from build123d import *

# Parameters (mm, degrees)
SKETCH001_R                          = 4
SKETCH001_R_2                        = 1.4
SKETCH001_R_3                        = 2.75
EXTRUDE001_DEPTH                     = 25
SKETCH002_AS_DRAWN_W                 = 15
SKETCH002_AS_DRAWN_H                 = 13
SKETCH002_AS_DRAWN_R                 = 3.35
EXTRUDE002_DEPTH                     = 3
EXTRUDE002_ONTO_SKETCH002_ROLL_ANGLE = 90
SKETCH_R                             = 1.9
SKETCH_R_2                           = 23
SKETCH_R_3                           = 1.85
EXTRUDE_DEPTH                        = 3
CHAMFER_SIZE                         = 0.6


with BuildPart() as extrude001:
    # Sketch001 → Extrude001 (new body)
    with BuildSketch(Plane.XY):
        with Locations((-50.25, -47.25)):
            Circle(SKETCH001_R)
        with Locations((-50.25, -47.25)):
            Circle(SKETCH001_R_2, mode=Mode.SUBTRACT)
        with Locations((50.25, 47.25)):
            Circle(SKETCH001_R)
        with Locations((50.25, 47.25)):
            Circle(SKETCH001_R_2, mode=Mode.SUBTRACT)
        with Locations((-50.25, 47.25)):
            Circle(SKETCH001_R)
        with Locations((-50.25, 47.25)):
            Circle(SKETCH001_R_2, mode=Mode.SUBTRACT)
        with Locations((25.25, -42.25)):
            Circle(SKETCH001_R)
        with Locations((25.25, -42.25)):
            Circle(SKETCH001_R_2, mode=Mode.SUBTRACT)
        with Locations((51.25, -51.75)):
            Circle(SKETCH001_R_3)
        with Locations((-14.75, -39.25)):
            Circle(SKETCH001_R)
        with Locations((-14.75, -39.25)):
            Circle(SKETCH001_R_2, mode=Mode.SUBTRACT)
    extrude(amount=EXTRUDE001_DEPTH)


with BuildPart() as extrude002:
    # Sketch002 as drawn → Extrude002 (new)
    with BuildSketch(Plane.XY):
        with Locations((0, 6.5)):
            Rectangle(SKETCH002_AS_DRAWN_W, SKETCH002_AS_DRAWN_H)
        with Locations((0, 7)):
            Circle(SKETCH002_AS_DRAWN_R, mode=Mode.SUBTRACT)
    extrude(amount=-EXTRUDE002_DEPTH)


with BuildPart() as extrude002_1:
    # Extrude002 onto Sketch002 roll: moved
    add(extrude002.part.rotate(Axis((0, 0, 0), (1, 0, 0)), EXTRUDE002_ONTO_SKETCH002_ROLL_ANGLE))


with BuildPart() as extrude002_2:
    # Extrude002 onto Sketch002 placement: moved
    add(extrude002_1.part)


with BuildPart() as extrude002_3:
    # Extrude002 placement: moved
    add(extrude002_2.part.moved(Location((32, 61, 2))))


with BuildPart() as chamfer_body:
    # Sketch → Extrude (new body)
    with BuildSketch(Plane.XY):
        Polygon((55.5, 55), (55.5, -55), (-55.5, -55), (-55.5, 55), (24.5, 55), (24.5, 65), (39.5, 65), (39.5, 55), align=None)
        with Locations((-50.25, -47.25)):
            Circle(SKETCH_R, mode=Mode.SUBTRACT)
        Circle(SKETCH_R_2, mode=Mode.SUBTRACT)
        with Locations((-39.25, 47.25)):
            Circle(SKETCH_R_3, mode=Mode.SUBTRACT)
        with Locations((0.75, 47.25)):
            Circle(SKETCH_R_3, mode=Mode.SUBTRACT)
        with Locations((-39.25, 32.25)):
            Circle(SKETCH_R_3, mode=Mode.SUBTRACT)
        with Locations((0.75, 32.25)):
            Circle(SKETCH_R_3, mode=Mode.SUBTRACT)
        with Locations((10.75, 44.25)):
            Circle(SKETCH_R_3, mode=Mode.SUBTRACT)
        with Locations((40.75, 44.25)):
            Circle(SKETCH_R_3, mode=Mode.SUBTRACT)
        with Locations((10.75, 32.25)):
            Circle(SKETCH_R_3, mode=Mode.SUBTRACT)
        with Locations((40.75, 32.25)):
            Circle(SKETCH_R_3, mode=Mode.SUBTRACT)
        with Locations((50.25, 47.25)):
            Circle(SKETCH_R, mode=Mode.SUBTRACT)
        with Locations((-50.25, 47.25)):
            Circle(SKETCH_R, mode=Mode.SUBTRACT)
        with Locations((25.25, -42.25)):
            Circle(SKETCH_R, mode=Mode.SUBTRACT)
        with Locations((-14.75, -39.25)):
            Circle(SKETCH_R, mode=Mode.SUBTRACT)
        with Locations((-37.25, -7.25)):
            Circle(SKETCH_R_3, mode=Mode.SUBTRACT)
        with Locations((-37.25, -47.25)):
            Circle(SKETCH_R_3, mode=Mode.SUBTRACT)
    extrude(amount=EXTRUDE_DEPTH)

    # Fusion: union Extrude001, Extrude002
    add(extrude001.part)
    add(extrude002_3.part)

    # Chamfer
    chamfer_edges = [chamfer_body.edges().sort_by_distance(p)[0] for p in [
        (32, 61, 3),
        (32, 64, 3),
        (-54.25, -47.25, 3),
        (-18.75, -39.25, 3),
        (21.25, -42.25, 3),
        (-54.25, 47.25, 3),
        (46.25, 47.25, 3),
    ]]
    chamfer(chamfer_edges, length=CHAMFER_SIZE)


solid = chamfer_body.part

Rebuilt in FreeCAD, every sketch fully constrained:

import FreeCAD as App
import Part
import Sketcher
from FreeCAD import Vector
Q = App.Units.Quantity


def edges_at(feature, points):
    """Names of the edges that pass closest to the given points."""
    edges = feature.Shape.Edges
    near = lambda p: min(range(len(edges)), key=lambda i: edges[i].distToShape(Part.Vertex(*p))[0])
    return sorted({f"Edge{near(p) + 1}" for p in points})


def add_polygon(sketch, points):
    """Adds a closed chain of lines whose ends are joined by coincident constraints."""
    first, n = sketch.GeometryCount, len(points)
    for a, b in zip(points, points[1:] + points[:1]):
        sketch.addGeometry(Part.LineSegment(App.Vector(*a, 0), App.Vector(*b, 0)), False)
    for i in range(n):
        sketch.addConstraint(Sketcher.Constraint("Coincident", first + i, 2, first + (i + 1) % n, 1))

doc = App.newDocument("Part")
params = doc.addObject("Spreadsheet::Sheet", "Params")
for row, (alias, value) in enumerate([
    ("sketch1_diameter", "8 mm"),
    ("sketch1_diameter2", "2.8 mm"),
    ("sketch1_diameter3", "5.5 mm"),
    ("pad1_length", "25 mm"),
    ("sketch2_diameter", "6.7 mm"),
    ("sketch2_width", "15 mm"),
    ("sketch2_height", "13 mm"),
    ("pad2_length", "3 mm"),
    ("sketch3_diameter", "46 mm"),
    ("sketch3_diameter2", "3.8 mm"),
    ("sketch3_diameter3", "3.7 mm"),
    ("sketch3_width", "16 mm"),
    ("sketch3_width2", "15 mm"),
    ("pad3_length", "3 mm"),
    ("chamfer_size", "0.6 mm"),
], start=1):
    params.set(f"A{row}", alias)
    params.set(f"B{row}", "=" + value)
    params.setAlias(f"B{row}", alias)

body = doc.addObject("PartDesign::Body", "Body")
body.AllowCompound = True

# Sketch on XY plane
sketch1 = body.newObject("Sketcher::SketchObject", "Sketch")
sketch1.AttachmentSupport = (doc.getObject("XY_Plane"), [""])
sketch1.MapMode = "FlatFace"
sketch1.addGeometry([
    Part.Circle(Vector(-50.2, -47.2, 0), Vector(0, 0, 1), 4),  # 0
    Part.Circle(Vector(-50.2, -47.2, 0), Vector(0, 0, 1), 1.4),  # 1
    Part.Circle(Vector(50.2, 47.2, 0), Vector(0, 0, 1), 4),  # 2
    Part.Circle(Vector(50.2, 47.2, 0), Vector(0, 0, 1), 1.4),  # 3
    Part.Circle(Vector(-50.2, 47.2, 0), Vector(0, 0, 1), 4),  # 4
    Part.Circle(Vector(-50.2, 47.2, 0), Vector(0, 0, 1), 1.4),  # 5
    Part.Circle(Vector(25.2, -42.2, 0), Vector(0, 0, 1), 4),  # 6
    Part.Circle(Vector(25.2, -42.2, 0), Vector(0, 0, 1), 1.4),  # 7
    Part.Circle(Vector(51.2, -51.8, 0), Vector(0, 0, 1), 2.8),  # 8
    Part.Circle(Vector(-14.8, -39.2, 0), Vector(0, 0, 1), 4),  # 9
    Part.Circle(Vector(-14.8, -39.2, 0), Vector(0, 0, 1), 1.4),  # 10
], False)
sketch1.addConstraint([
    Sketcher.Constraint("Coincident", 1, 3, 0, 3),
    Sketcher.Constraint("Coincident", 3, 3, 2, 3),
    Sketcher.Constraint("Coincident", 5, 3, 4, 3),
    Sketcher.Constraint("Coincident", 7, 3, 6, 3),
    Sketcher.Constraint("Coincident", 10, 3, 9, 3),
    Sketcher.Constraint("Equal", 0, 2),
    Sketcher.Constraint("Equal", 1, 3),
    Sketcher.Constraint("Equal", 2, 4),
    Sketcher.Constraint("Equal", 3, 5),
    Sketcher.Constraint("Equal", 4, 6),
    Sketcher.Constraint("Equal", 5, 7),
    Sketcher.Constraint("Equal", 6, 9),
    Sketcher.Constraint("Equal", 7, 10),
    Sketcher.Constraint("Symmetric", 0, 3, 2, 3, -1, 1),
    Sketcher.Constraint("Symmetric", 2, 3, 4, 3, -2),
    Sketcher.Constraint("Diameter", 0, Q("8 mm")),
    Sketcher.Constraint("Diameter", 1, Q("2.8 mm")),
    Sketcher.Constraint("Diameter", 8, Q("5.5 mm")),
    Sketcher.Constraint("DistanceY", 0, 3, 6, 3, Q("5 mm")),
    Sketcher.Constraint("DistanceX", 6, 3, 2, 3, Q("25 mm")),
    Sketcher.Constraint("DistanceX", 6, 3, 8, 3, Q("26 mm")),
    Sketcher.Constraint("DistanceY", 8, 3, 2, 3, Q("99 mm")),
    Sketcher.Constraint("DistanceY", 0, 3, 9, 3, Q("8 mm")),
    Sketcher.Constraint("DistanceX", 9, 3, 6, 3, Q("40 mm")),
    Sketcher.Constraint("DistanceX", 0, 3, 2, 3, Q("100.5 mm")),
    Sketcher.Constraint("DistanceY", 0, 3, 2, 3, Q("94.5 mm")),
])
sketch1.setExpression("Constraints[15]", "Params.sketch1_diameter")
sketch1.setExpression("Constraints[16]", "Params.sketch1_diameter2")
sketch1.setExpression("Constraints[17]", "Params.sketch1_diameter3")
pad1 = body.newObject("PartDesign::Pad", "Pad")
pad1.Profile = sketch1
pad1.setExpression("Length", "Params.pad1_length")
body2 = doc.addObject("PartDesign::Body", "Body001")

# Sketch on XY plane
sketch2 = body2.newObject("Sketcher::SketchObject", "Sketch001")
sketch2.AttachmentSupport = (doc.getObject("XY_Plane001"), [""])
sketch2.MapMode = "FlatFace"
add_polygon(sketch2, [(-7.5, 13), (-7.5, 0), (7.5, 0), (7.5, 13)])  # lines 0-3
sketch2.addGeometry(Part.Circle(Vector(0, 7, 0), Vector(0, 0, 1), 3.4), False)  # 4
sketch2.addConstraint([
    Sketcher.Constraint("Vertical", 0),
    Sketcher.Constraint("Horizontal", 1),
    Sketcher.Constraint("Vertical", 2),
    Sketcher.Constraint("Horizontal", 3),
    Sketcher.Constraint("Symmetric", 0, 2, 1, 2, -1, 1),
    Sketcher.Constraint("PointOnObject", 4, 3, -2),
    Sketcher.Constraint("Diameter", 4, Q("6.7 mm")),
    Sketcher.Constraint("DistanceX", 1, 1, 1, 2, Q("15 mm")),
    Sketcher.Constraint("DistanceY", 0, 2, 0, 1, Q("13 mm")),
    Sketcher.Constraint("DistanceY", -1, 1, 4, 3, Q("7 mm")),
])
sketch2.setExpression("Constraints[10]", "Params.sketch2_diameter")
sketch2.setExpression("Constraints[11]", "Params.sketch2_width")
sketch2.setExpression("Constraints[12]", "Params.sketch2_height")
pad2 = body2.newObject("PartDesign::Pad", "Pad001")
pad2.Profile = sketch2
pad2.setExpression("Length", "Params.pad2_length")
pad2.Reversed = True
body3 = doc.addObject("PartDesign::Body", "Body002")
doc.recompute()

body2.Placement = App.Placement(Vector(0, 0, 0), App.Rotation(Vector(1, 0, 0), 90))
boolean = body3.newObject("PartDesign::Boolean", "Boolean")
boolean.Type = "Fuse"
boolean.addObjects([body2])
body4 = doc.addObject("PartDesign::Body", "Body003")
doc.recompute()

body3.Placement = App.Placement(Vector(32, 61, 2), App.Rotation(Vector(0, 0, 1), 0))
boolean2 = body4.newObject("PartDesign::Boolean", "Boolean001")
boolean2.Type = "Fuse"
boolean2.addObjects([body3])
body5 = doc.addObject("PartDesign::Body", "Body004")

# Sketch on XY plane
sketch3 = body5.newObject("Sketcher::SketchObject", "Sketch002")
sketch3.AttachmentSupport = (doc.getObject("XY_Plane004"), [""])
sketch3.MapMode = "FlatFace"
add_polygon(sketch3, [(55.5, -55), (55.5, 55), (39.5, 55), (39.5, 65), (24.5, 65), (24.5, 55), (-55.5, 55), (-55.5, -55)])  # lines 0-7
sketch3.addGeometry(Part.Circle(Vector(25.2, -42.2, 0), Vector(0, 0, 1), 1.9), False)  # 8
sketch3.addGeometry(Part.Circle(Vector(-14.8, -39.2, 0), Vector(0, 0, 1), 1.9), False)  # 9
sketch3.addGeometry(Part.Circle(Vector(-37.2, -47.2, 0), Vector(0, 0, 1), 1.9), False)  # 10
sketch3.addGeometry(Part.Circle(Vector(-50.2, -47.2, 0), Vector(0, 0, 1), 1.9), False)  # 11
sketch3.addGeometry(Part.Circle(Vector(-37.2, -7.2, 0), Vector(0, 0, 1), 1.9), False)  # 12
sketch3.addGeometry(Part.Circle(Vector(0, 0, 0), Vector(0, 0, 1), 23), False)  # 13
sketch3.addGeometry(Part.Circle(Vector(40.8, 32.2, 0), Vector(0, 0, 1), 1.9), False)  # 14
sketch3.addGeometry(Part.Circle(Vector(50.2, 47.2, 0), Vector(0, 0, 1), 1.9), False)  # 15
sketch3.addGeometry(Part.Circle(Vector(40.8, 44.2, 0), Vector(0, 0, 1), 1.9), False)  # 16
sketch3.addGeometry(Part.Circle(Vector(10.8, 32.2, 0), Vector(0, 0, 1), 1.9), False)  # 17
sketch3.addGeometry(Part.Circle(Vector(0.8, 32.2, 0), Vector(0, 0, 1), 1.9), False)  # 18
sketch3.addGeometry(Part.Circle(Vector(10.8, 44.2, 0), Vector(0, 0, 1), 1.9), False)  # 19
sketch3.addGeometry(Part.Circle(Vector(0.8, 47.2, 0), Vector(0, 0, 1), 1.9), False)  # 20
sketch3.addGeometry(Part.Circle(Vector(-39.2, 32.2, 0), Vector(0, 0, 1), 1.9), False)  # 21
sketch3.addGeometry(Part.Circle(Vector(-39.2, 47.2, 0), Vector(0, 0, 1), 1.9), False)  # 22
sketch3.addGeometry(Part.Circle(Vector(-50.2, 47.2, 0), Vector(0, 0, 1), 1.9), False)  # 23
sketch3.addConstraint([
    Sketcher.Constraint("Vertical", 0),
    Sketcher.Constraint("Horizontal", 1),
    Sketcher.Constraint("Vertical", 2),
    Sketcher.Constraint("Horizontal", 3),
    Sketcher.Constraint("Vertical", 4),
    Sketcher.Constraint("Horizontal", 5),
    Sketcher.Constraint("Vertical", 6),
    Sketcher.Constraint("Horizontal", 7),
    Sketcher.Constraint("Coincident", 13, 3, -1, 1),
    Sketcher.Constraint("Equal", 8, 9),
    Sketcher.Constraint("Equal", 9, 11),
    Sketcher.Constraint("Equal", 10, 12),
    Sketcher.Constraint("Equal", 12, 14),
    Sketcher.Constraint("Equal", 11, 15),
    Sketcher.Constraint("Equal", 14, 16),
    Sketcher.Constraint("Equal", 16, 17),
    Sketcher.Constraint("Equal", 17, 18),
    Sketcher.Constraint("Equal", 18, 19),
    Sketcher.Constraint("Equal", 19, 20),
    Sketcher.Constraint("Equal", 20, 21),
    Sketcher.Constraint("Equal", 21, 22),
    Sketcher.Constraint("Equal", 15, 23),
    Sketcher.Constraint("Symmetric", 11, 3, 15, 3, -1, 1),
    Sketcher.Constraint("Symmetric", 0, 2, 6, 2, -1, 1),
    Sketcher.Constraint("Symmetric", 15, 3, 23, 3, -2),
    Sketcher.Constraint("Horizontal", 10, 3, 11, 3),
    Sketcher.Constraint("Horizontal", 14, 3, 17, 3),
    Sketcher.Constraint("Horizontal", 17, 3, 18, 3),
    Sketcher.Constraint("Horizontal", 16, 3, 19, 3),
    Sketcher.Constraint("Horizontal", 15, 3, 20, 3),
    Sketcher.Constraint("Horizontal", 18, 3, 21, 3),
    Sketcher.Constraint("Horizontal", 20, 3, 22, 3),
    Sketcher.Constraint("Horizontal", 1, 2, 4, 2),
    Sketcher.Constraint("Vertical", 10, 3, 12, 3),
    Sketcher.Constraint("Vertical", 14, 3, 16, 3),
    Sketcher.Constraint("Vertical", 17, 3, 19, 3),
    Sketcher.Constraint("Vertical", 18, 3, 20, 3),
    Sketcher.Constraint("Vertical", 21, 3, 22, 3),
    Sketcher.Constraint("Diameter", 13, Q("46 mm")),
    Sketcher.Constraint("Diameter", 8, Q("3.8 mm")),
    Sketcher.Constraint("Diameter", 10, Q("3.7 mm")),
    Sketcher.Constraint("DistanceX", 1, 2, 1, 1, Q("16 mm")),
    Sketcher.Constraint("DistanceX", 3, 2, 3, 1, Q("15 mm")),
    Sketcher.Constraint("DistanceX", 5, 2, 5, 1, Q("80 mm")),
    Sketcher.Constraint("DistanceY", 0, 1, 0, 2, Q("110 mm")),
    Sketcher.Constraint("DistanceY", 2, 1, 2, 2, Q("10 mm")),
    Sketcher.Constraint("DistanceX", 9, 3, 8, 3, Q("40 mm")),
    Sketcher.Constraint("DistanceY", 8, 3, 9, 3, Q("3 mm")),
    Sketcher.Constraint("DistanceY", 10, 3, 9, 3, Q("8 mm")),
    Sketcher.Constraint("DistanceX", 11, 3, 10, 3, Q("13 mm")),
    Sketcher.Constraint("DistanceY", 9, 3, 12, 3, Q("32 mm")),
    Sketcher.Constraint("DistanceX", 12, 3, 14, 3, Q("78 mm")),
    Sketcher.Constraint("DistanceY", 14, 3, 15, 3, Q("15 mm")),
    Sketcher.Constraint("DistanceX", 8, 3, 15, 3, Q("25 mm")),
    Sketcher.Constraint("DistanceY", 16, 3, 15, 3, Q("3 mm")),
    Sketcher.Constraint("DistanceX", 17, 3, 14, 3, Q("30 mm")),
    Sketcher.Constraint("DistanceX", 18, 3, 17, 3, Q("10 mm")),
    Sketcher.Constraint("DistanceX", 21, 3, 12, 3, Q("2 mm")),
    Sketcher.Constraint("DistanceX", 10, 3, 9, 3, Q("22.5 mm")),
    Sketcher.Constraint("DistanceY", 8, 3, 14, 3, Q("74.5 mm")),
])
sketch3.setExpression("Constraints[46]", "Params.sketch3_diameter")
sketch3.setExpression("Constraints[47]", "Params.sketch3_diameter2")
sketch3.setExpression("Constraints[48]", "Params.sketch3_diameter3")
sketch3.setExpression("Constraints[49]", "Params.sketch3_width")
sketch3.setExpression("Constraints[50]", "Params.sketch3_width2")
pad3 = body5.newObject("PartDesign::Pad", "Pad002")
pad3.Profile = sketch3
pad3.setExpression("Length", "Params.pad3_length")
doc.recompute()

boolean3 = body5.newObject("PartDesign::Boolean", "Boolean002")
boolean3.Type = "Fuse"
boolean3.addObjects([body])
doc.recompute()

boolean4 = body5.newObject("PartDesign::Boolean", "Boolean003")
boolean4.Type = "Fuse"
boolean4.addObjects([body4])
doc.recompute()

chamfer = body5.newObject("PartDesign::Chamfer", "Chamfer")
chamfer.Base = (boolean4, edges_at(boolean4, [
    (32, 61, 3),
    (32, 64, 3),
    (-54.25, -47.25, 3),
    (-18.75, -39.25, 3),
    (21.25, -42.25, 3),
    (-54.25, 47.25, 3),
    (46.25, 47.25, 3),
]))
chamfer.setExpression("Size", "Params.chamfer_size")

doc.recompute()
